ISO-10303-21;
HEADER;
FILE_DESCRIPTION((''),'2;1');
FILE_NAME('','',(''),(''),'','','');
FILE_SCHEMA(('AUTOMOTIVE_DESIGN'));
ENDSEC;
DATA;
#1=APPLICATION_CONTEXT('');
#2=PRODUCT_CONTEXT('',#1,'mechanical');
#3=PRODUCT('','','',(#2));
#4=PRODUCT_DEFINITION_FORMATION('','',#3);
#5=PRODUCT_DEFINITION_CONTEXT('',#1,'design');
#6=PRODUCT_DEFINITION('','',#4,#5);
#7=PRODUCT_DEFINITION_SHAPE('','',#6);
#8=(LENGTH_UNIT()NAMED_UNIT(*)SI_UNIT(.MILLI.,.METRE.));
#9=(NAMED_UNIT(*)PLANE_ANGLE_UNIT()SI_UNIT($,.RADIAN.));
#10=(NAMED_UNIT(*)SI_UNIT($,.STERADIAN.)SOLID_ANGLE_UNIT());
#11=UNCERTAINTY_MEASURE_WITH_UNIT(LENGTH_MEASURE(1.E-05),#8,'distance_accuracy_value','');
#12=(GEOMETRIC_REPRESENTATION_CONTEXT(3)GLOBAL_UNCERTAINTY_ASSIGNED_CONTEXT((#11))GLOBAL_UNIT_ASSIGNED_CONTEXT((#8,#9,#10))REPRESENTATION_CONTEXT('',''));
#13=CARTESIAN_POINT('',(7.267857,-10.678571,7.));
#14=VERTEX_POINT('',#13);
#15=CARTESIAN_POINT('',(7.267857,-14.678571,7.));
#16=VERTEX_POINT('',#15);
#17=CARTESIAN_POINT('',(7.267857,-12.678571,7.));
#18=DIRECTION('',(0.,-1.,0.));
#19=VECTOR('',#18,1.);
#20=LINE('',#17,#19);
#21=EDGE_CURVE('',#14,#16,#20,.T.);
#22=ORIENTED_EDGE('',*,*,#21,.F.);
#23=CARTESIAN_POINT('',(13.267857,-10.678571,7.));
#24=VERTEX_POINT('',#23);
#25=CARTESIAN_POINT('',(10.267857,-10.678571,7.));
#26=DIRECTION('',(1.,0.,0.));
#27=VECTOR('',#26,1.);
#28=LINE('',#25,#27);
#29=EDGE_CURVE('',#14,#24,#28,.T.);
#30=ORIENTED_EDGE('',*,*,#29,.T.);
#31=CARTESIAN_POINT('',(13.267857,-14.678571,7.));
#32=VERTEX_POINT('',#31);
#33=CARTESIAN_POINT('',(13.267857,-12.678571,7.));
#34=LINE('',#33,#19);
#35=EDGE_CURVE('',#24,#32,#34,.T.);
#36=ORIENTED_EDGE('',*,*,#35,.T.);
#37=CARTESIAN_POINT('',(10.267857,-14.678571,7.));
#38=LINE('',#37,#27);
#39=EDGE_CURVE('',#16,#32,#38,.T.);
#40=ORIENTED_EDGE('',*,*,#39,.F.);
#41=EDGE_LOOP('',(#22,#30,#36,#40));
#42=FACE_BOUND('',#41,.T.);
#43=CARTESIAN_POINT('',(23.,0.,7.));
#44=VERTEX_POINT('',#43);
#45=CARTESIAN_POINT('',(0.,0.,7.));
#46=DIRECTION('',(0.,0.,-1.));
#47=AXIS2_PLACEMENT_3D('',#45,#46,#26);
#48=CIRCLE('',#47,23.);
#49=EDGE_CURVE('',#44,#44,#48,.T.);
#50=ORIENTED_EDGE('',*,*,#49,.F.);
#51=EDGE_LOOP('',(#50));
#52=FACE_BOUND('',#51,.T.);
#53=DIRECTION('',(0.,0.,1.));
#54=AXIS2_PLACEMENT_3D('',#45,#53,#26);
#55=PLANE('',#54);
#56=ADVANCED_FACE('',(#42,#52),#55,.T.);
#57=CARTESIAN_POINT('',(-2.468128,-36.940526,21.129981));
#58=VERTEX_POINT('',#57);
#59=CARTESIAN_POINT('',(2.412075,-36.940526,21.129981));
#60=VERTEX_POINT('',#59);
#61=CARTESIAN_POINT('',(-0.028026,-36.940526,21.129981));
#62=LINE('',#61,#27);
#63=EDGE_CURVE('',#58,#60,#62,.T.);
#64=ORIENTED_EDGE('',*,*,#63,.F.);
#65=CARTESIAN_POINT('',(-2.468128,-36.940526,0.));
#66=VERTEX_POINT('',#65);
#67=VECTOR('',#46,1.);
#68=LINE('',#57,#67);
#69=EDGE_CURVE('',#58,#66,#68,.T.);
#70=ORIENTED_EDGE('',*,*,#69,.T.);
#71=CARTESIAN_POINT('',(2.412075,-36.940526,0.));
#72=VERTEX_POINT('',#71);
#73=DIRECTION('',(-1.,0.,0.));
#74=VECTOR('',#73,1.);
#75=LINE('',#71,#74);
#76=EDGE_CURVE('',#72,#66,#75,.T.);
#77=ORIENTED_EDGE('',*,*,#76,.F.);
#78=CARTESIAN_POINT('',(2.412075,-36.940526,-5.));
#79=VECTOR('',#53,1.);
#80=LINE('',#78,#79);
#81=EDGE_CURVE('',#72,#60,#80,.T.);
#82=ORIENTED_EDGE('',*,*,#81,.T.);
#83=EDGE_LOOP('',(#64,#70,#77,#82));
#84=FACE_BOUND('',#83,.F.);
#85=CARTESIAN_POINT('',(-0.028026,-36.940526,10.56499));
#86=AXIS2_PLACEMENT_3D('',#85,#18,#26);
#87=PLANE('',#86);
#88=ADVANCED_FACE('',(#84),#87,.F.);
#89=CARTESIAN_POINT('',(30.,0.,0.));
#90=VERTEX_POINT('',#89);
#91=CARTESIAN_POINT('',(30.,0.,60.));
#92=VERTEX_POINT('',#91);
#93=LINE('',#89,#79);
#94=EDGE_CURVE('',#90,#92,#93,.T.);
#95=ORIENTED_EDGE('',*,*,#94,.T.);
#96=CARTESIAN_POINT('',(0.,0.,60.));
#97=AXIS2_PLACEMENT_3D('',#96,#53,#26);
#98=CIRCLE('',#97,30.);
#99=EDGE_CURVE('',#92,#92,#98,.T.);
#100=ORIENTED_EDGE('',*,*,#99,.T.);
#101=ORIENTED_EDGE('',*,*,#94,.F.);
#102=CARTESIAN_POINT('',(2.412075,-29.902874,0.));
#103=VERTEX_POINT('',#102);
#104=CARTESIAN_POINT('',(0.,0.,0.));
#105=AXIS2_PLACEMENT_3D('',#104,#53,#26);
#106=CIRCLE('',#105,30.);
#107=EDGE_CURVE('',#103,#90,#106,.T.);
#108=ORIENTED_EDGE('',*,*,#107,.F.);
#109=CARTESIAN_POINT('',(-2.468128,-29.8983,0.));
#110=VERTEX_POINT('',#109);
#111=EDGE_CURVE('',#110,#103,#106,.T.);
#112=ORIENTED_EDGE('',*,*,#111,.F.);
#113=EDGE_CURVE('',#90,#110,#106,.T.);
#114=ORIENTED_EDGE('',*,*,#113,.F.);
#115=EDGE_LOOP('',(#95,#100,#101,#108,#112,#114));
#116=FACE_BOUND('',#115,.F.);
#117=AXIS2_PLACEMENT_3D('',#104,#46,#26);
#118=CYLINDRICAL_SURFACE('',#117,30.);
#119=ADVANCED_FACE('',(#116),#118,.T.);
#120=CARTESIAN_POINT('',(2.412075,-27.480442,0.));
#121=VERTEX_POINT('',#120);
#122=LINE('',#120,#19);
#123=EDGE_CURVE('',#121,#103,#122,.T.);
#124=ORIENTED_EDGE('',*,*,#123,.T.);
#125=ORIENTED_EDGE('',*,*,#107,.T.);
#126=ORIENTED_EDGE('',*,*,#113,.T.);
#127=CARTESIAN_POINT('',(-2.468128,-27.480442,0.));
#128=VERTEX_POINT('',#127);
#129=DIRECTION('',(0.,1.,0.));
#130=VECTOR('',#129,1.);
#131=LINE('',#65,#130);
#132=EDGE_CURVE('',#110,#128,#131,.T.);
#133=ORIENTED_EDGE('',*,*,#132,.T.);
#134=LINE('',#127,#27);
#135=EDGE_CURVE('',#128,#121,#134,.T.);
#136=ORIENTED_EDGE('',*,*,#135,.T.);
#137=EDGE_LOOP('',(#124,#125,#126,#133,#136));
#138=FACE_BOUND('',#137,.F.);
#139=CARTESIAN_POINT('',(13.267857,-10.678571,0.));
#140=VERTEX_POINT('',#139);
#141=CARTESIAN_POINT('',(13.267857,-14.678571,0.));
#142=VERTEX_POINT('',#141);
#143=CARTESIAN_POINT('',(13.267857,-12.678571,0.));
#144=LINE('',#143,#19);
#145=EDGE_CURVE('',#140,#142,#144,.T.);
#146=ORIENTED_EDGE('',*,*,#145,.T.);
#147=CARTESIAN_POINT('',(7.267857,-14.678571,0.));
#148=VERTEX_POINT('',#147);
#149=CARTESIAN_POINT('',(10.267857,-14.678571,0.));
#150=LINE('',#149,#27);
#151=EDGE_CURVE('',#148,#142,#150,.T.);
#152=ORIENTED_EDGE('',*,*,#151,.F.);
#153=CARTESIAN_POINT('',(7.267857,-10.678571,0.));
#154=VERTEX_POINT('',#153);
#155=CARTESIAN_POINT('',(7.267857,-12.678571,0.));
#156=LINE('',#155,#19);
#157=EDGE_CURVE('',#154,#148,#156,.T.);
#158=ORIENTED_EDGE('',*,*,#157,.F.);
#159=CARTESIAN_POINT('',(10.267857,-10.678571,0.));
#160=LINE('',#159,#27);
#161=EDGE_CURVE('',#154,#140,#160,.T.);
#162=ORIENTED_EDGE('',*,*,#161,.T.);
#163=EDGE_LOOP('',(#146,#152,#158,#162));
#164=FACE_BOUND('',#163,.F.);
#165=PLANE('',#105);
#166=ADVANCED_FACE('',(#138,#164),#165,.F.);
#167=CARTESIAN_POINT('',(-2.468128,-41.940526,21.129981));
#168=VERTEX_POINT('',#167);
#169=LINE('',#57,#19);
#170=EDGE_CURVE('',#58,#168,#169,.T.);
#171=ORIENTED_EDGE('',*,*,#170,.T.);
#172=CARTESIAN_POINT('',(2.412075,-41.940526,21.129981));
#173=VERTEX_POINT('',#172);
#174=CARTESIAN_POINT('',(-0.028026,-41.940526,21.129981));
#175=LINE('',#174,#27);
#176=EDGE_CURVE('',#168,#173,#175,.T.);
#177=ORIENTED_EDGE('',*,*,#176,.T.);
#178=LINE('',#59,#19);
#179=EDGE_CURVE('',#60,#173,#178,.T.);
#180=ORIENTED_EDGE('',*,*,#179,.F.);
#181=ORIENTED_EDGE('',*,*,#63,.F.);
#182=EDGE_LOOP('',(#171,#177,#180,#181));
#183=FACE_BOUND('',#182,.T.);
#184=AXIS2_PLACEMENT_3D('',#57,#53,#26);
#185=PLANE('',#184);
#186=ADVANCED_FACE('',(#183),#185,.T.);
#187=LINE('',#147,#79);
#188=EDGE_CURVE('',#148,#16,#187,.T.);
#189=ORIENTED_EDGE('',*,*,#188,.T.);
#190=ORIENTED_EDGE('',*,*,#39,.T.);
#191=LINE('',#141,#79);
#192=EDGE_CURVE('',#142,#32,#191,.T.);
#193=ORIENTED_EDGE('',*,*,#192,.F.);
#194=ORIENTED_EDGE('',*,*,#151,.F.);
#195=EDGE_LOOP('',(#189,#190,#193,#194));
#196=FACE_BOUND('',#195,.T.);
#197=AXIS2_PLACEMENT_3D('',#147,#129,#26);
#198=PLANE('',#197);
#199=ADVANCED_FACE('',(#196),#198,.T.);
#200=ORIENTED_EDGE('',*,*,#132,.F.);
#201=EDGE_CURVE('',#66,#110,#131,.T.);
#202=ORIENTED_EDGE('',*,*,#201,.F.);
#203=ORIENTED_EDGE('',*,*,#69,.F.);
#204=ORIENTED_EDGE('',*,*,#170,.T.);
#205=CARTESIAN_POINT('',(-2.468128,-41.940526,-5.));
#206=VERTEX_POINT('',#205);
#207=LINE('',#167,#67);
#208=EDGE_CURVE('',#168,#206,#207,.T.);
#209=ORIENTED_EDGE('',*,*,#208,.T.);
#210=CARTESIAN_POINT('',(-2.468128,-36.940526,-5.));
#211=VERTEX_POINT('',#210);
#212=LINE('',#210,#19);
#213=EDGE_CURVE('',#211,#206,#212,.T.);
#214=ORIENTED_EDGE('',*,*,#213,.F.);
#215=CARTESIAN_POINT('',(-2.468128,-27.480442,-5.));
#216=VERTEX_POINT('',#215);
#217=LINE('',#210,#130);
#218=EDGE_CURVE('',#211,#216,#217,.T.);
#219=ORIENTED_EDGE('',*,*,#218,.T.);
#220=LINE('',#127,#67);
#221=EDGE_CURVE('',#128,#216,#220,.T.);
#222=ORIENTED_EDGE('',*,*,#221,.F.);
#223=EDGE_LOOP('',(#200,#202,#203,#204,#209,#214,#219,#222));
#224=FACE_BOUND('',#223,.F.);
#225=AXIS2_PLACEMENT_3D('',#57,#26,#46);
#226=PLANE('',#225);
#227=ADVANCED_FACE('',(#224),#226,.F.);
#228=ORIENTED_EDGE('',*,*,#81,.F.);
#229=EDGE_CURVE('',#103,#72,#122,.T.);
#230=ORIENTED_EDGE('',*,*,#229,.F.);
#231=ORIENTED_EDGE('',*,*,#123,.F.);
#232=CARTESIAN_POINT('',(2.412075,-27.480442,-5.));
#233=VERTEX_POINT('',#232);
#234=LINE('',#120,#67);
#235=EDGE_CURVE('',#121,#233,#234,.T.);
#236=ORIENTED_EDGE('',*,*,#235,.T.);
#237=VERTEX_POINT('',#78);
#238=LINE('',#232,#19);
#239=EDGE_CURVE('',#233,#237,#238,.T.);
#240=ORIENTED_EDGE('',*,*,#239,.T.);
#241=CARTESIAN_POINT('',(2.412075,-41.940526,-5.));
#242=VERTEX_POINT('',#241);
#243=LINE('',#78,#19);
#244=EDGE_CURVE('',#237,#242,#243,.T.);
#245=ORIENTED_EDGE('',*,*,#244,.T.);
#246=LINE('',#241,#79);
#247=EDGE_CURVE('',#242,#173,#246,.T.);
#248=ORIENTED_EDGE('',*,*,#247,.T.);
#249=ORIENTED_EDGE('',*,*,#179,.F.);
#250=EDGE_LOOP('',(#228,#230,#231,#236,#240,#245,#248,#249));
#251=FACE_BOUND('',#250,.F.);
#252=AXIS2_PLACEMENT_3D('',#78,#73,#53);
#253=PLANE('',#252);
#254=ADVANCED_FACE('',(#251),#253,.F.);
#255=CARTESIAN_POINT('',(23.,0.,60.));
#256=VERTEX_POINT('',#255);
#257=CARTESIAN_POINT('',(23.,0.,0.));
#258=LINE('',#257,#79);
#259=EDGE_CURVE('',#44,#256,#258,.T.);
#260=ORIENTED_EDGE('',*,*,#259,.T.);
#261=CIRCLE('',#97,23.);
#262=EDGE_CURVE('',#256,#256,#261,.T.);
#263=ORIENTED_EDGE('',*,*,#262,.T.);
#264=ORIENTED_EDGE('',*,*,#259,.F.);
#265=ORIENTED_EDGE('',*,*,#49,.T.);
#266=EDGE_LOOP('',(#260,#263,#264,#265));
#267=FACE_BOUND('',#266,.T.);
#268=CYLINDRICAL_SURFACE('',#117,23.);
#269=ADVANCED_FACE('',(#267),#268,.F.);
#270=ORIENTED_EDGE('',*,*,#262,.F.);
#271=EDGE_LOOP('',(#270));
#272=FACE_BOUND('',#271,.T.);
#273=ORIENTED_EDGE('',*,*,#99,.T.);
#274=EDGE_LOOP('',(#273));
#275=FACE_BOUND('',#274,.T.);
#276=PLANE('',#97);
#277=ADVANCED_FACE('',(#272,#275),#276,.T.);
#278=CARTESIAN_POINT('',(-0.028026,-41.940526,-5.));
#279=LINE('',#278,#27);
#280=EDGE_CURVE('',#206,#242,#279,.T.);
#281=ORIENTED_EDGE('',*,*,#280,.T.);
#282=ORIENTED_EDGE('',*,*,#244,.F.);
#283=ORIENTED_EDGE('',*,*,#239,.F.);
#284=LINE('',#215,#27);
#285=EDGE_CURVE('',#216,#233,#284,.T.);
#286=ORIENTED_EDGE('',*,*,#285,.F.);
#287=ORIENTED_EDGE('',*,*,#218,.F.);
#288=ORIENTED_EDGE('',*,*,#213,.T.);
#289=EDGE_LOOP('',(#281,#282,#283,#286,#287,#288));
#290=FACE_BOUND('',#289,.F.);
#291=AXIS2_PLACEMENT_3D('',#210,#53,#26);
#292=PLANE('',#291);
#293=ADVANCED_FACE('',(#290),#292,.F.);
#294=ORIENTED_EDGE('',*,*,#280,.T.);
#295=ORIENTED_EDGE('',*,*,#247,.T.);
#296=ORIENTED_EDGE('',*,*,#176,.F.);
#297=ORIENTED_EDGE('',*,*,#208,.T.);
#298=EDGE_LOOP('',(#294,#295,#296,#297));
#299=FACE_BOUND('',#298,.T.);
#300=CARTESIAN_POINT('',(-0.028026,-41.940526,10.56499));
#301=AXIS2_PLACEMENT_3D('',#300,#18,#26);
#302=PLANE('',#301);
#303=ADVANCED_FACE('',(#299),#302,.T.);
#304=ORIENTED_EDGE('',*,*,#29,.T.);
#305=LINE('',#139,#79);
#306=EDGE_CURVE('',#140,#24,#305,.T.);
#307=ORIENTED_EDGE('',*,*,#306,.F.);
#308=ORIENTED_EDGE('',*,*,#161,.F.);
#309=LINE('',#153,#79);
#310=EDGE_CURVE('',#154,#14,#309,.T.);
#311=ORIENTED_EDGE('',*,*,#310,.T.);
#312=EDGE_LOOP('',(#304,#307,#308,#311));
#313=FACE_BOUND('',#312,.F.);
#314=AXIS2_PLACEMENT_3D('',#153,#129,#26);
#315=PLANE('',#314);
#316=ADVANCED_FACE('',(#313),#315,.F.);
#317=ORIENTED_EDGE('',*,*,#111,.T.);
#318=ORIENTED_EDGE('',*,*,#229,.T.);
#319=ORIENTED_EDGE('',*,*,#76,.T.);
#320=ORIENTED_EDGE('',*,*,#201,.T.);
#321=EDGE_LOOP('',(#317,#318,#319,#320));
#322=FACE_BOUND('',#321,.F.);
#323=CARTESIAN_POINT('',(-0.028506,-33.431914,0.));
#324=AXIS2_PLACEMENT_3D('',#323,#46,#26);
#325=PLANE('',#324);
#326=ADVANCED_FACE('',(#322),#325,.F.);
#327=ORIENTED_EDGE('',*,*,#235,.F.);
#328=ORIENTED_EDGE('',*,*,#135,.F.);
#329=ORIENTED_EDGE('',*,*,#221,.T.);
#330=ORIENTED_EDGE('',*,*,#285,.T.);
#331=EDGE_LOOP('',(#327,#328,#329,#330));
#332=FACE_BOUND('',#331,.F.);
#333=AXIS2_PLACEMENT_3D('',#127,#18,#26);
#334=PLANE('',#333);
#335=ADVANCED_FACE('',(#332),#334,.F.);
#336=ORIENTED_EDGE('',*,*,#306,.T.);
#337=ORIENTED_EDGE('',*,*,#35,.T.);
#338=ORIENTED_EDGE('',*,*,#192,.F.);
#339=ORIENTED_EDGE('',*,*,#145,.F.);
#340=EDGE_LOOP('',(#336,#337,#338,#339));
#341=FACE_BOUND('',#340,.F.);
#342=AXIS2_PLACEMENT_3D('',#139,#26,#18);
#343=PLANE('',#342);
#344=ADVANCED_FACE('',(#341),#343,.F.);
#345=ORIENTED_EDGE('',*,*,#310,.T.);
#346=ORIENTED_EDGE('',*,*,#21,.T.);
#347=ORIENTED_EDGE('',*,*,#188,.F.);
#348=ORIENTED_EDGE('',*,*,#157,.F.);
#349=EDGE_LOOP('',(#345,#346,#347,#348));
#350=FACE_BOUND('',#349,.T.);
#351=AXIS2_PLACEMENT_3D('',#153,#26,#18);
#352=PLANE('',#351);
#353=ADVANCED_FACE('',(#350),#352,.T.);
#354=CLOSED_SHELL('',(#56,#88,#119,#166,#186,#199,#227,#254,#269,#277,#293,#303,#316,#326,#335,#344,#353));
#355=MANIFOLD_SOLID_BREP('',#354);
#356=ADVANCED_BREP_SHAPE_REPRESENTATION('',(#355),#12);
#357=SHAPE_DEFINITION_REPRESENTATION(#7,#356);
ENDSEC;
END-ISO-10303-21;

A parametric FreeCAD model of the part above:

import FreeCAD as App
import Part
import Sketcher
from FreeCAD import Vector


def faces_at(feature, points):
    """Names of the faces that lie closest to the given points."""
    faces = feature.Shape.Faces
    near = lambda p: min(range(len(faces)), key=lambda i: faces[i].distToShape(Part.Vertex(*p))[0])
    return sorted({f"Face{near(p) + 1}" for p in points})


def add_polygon(sketch, points):
    """Adds a closed chain of lines whose ends are joined by coincident constraints."""
    first, n = sketch.GeometryCount, len(points)
    for a, b in zip(points, points[1:] + points[:1]):
        sketch.addGeometry(Part.LineSegment(App.Vector(*a, 0), App.Vector(*b, 0)), False)
    for i in range(n):
        sketch.addConstraint(Sketcher.Constraint("Coincident", first + i, 2, first + (i + 1) % n, 1))

doc = App.newDocument("Part")
body = doc.addObject("PartDesign::Body", "Body")

# Sketch on XY plane
sketch1 = doc.addObject("Sketcher::SketchObject", "Sketch")
body.addObject(sketch1)
sketch1.AttachmentSupport = (doc.XY_Plane, [""])
sketch1.MapMode = "FlatFace"
sketch1.addGeometry(Part.Circle(Vector(0, 0, 0), Vector(0, 0, 1), 30), False)
sketch1.addConstraint(Sketcher.Constraint("Coincident", 0, 3, -1, 1))
sketch1.addConstraint(Sketcher.Constraint("Diameter", 0, 60.0))
pad1 = doc.addObject("PartDesign::Pad", "Pad")
body.addObject(pad1)
pad1.Profile = sketch1
pad1.Length = 60
doc.recompute()

thickness = doc.addObject("PartDesign::Thickness", "Thickness")
body.addObject(thickness)
thickness.Base = (pad1, faces_at(pad1, [(0, 0, 60)]))
thickness.Value = 7
thickness.Reversed = True
thickness.Join = "Arc"

# Sketch on XY plane
sketch2 = doc.addObject("Sketcher::SketchObject", "Sketch001")
body.addObject(sketch2)
sketch2.AttachmentSupport = (doc.XY_Plane, [""])
sketch2.MapMode = "FlatFace"
add_polygon(sketch2, [(7.3, -14.7), (7.3, -10.7), (13.3, -10.7), (13.3, -14.7)])  # lines 0-3
sketch2.addConstraint(Sketcher.Constraint("Vertical", 0))
sketch2.addConstraint(Sketcher.Constraint("Horizontal", 1))
sketch2.addConstraint(Sketcher.Constraint("Vertical", 2))
sketch2.addConstraint(Sketcher.Constraint("Horizontal", 3))
sketch2.addConstraint(Sketcher.Constraint("DistanceX", 1, 1, 1, 2, 6.0))
sketch2.addConstraint(Sketcher.Constraint("DistanceY", 0, 1, 0, 2, 4.0))
sketch2.addConstraint(Sketcher.Constraint("DistanceY", 0, 2, -1, 1, 10.678571))
sketch2.addConstraint(Sketcher.Constraint("DistanceX", -1, 1, 0, 2, 7.267857))
pocket1 = doc.addObject("PartDesign::Pocket", "Pocket")
body.addObject(pocket1)
pocket1.Profile = sketch2
pocket1.Length = 7
pocket1.Reversed = True

# Sketch on XY plane
sketch3 = doc.addObject("Sketcher::SketchObject", "Sketch002")
body.addObject(sketch3)
sketch3.AttachmentSupport = (doc.XY_Plane, [""])
sketch3.MapMode = "FlatFace"
add_polygon(sketch3, [(-2.5, -36.9), (-2.5, -27.5), (2.4, -27.5), (2.4, -36.9)])  # lines 0-3
sketch3.addConstraint(Sketcher.Constraint("Vertical", 0))
sketch3.addConstraint(Sketcher.Constraint("Horizontal", 1))
sketch3.addConstraint(Sketcher.Constraint("Vertical", 2))
sketch3.addConstraint(Sketcher.Constraint("Horizontal", 3))
sketch3.addConstraint(Sketcher.Constraint("DistanceX", 1, 1, 1, 2, 4.880203))
sketch3.addConstraint(Sketcher.Constraint("DistanceY", 0, 1, 0, 2, 9.460084))
sketch3.addConstraint(Sketcher.Constraint("DistanceX", 0, 2, -1, 1, 2.468128))
sketch3.addConstraint(Sketcher.Constraint("DistanceY", 0, 2, -1, 1, 27.480442))
pad2 = doc.addObject("PartDesign::Pad", "Pad001")
body.addObject(pad2)
pad2.Profile = sketch3
pad2.Length = 5
pad2.Reversed = True

# Sketch on XZ plane
sketch4 = doc.addObject("Sketcher::SketchObject", "Sketch003")
body.addObject(sketch4)
sketch4.AttachmentSupport = (doc.XZ_Plane, [""])
sketch4.MapMode = "FlatFace"
sketch4.AttachmentOffset = App.Placement(Vector(0, 0, 36.940526), App.Rotation())
add_polygon(sketch4, [(-2.5, 21.1), (-2.5, -5), (2.4, -5), (2.4, 21.1)])  # lines 0-3
sketch4.addConstraint(Sketcher.Constraint("Vertical", 0))
sketch4.addConstraint(Sketcher.Constraint("Horizontal", 1))
sketch4.addConstraint(Sketcher.Constraint("Vertical", 2))
sketch4.addConstraint(Sketcher.Constraint("Horizontal", 3))
sketch4.addConstraint(Sketcher.Constraint("DistanceY", 0, 2, -1, 1, 5.0))
sketch4.addConstraint(Sketcher.Constraint("DistanceY", 0, 2, 0, 1, 26.129981))
sketch4.addConstraint(Sketcher.Constraint("DistanceX", 1, 1, 1, 2, 4.880203))
sketch4.addConstraint(Sketcher.Constraint("DistanceX", 0, 2, -1, 1, 2.468128))
pad3 = doc.addObject("PartDesign::Pad", "Pad002")
body.addObject(pad3)
pad3.Profile = sketch4
pad3.Length = 5

doc.recompute()
